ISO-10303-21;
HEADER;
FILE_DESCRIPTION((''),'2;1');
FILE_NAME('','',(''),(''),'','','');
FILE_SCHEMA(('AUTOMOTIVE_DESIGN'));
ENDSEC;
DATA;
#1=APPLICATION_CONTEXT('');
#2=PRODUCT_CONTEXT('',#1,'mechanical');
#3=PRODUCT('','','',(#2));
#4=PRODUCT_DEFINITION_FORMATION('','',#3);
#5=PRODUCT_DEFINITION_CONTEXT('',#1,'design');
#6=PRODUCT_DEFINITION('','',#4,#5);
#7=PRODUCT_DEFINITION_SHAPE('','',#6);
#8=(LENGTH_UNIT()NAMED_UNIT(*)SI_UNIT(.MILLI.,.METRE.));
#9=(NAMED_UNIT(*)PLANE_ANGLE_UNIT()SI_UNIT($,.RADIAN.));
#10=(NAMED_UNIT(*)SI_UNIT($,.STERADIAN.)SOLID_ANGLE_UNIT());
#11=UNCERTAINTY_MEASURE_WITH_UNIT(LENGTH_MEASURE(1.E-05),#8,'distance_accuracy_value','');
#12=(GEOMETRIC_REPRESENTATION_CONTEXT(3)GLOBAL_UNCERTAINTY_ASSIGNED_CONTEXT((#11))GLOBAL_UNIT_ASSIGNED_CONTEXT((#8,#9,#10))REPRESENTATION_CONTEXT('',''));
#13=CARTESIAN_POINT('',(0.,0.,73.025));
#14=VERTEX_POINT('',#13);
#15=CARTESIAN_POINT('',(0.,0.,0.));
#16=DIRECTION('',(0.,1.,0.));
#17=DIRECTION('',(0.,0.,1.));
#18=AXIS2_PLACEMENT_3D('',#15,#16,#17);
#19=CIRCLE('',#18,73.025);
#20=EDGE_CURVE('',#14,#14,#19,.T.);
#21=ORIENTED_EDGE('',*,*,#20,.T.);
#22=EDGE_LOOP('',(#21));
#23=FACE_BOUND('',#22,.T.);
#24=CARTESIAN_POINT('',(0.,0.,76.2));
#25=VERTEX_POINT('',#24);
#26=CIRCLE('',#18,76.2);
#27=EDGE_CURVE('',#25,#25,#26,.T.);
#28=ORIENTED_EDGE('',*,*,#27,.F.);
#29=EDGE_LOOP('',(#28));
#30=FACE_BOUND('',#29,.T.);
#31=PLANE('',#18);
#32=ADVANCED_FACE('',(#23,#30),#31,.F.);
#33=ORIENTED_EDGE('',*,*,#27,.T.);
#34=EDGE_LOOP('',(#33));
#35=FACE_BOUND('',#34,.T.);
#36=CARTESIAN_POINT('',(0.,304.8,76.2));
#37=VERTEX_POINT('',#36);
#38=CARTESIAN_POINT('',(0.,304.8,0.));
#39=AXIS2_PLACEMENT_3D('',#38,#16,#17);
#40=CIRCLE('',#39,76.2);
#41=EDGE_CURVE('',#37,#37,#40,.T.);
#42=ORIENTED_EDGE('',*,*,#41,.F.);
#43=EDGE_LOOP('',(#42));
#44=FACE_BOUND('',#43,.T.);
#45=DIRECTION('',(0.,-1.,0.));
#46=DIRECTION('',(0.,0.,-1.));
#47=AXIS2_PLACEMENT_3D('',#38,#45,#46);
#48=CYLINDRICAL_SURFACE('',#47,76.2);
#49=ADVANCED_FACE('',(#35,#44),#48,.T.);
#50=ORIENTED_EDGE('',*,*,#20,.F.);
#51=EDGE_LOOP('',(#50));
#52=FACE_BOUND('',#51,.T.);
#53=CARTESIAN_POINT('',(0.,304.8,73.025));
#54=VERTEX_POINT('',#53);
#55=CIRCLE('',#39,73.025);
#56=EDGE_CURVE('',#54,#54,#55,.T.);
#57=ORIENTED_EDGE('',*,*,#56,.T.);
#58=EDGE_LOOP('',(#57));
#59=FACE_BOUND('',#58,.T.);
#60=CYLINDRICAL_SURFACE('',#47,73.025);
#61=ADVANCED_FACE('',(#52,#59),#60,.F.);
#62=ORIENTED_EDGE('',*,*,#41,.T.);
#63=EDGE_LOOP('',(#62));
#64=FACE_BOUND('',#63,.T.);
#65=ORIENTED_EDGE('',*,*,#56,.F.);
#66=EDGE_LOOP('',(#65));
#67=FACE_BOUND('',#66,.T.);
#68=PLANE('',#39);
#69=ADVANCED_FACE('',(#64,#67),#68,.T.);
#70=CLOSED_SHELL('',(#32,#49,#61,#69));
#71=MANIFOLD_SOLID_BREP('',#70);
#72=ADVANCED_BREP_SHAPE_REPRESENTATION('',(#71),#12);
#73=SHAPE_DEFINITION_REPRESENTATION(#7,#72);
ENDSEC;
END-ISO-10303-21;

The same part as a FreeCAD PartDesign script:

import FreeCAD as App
import Part
import Sketcher

V = App.Vector
Q = App.Units.Quantity

doc = App.newDocument("Part")
params = doc.addObject("Spreadsheet::Sheet", "Params")
for row, (alias, value) in enumerate([
    ("sketch1_diameter", "6 in"),
    ("sketch1_diameter2", "5.75 in"),
    ("pad1_length", "12 in"),
], start=1):
    params.set(f"A{row}", alias)
    params.set(f"B{row}", "=" + value)
    params.setAlias(f"B{row}", alias)

body = doc.addObject("PartDesign::Body", "Body")

# Sketch on XZ plane
sketch1 = doc.addObject("Sketcher::SketchObject", "Sketch")
body.addObject(sketch1)
sketch1.AttachmentSupport = (doc.XZ_Plane, [""])
sketch1.MapMode = "FlatFace"
sketch1.addGeometry([
    Part.Circle(V(0, 0, 0), V(0, 0, 1), 76),
    Part.Circle(V(0, 0, 0), V(0, 0, 1), 73),
], False)
sketch1.addConstraint([
    Sketcher.Constraint("Coincident", 0, 3, -1, 1),
    Sketcher.Constraint("Coincident", 1, 3, -1, 1),
    Sketcher.Constraint("Diameter", 0, Q("6 in")),
    Sketcher.Constraint("Diameter", 1, Q("5.75 in")),
])
sketch1.setExpression("Constraints[2]", "Params.sketch1_diameter")
sketch1.setExpression("Constraints[3]", "Params.sketch1_diameter2")
pad1 = doc.addObject("PartDesign::Pad", "Pad")
body.addObject(pad1)
pad1.Profile = sketch1
pad1.setExpression("Length", "Params.pad1_length")
pad1.Reversed = True

doc.recompute()
